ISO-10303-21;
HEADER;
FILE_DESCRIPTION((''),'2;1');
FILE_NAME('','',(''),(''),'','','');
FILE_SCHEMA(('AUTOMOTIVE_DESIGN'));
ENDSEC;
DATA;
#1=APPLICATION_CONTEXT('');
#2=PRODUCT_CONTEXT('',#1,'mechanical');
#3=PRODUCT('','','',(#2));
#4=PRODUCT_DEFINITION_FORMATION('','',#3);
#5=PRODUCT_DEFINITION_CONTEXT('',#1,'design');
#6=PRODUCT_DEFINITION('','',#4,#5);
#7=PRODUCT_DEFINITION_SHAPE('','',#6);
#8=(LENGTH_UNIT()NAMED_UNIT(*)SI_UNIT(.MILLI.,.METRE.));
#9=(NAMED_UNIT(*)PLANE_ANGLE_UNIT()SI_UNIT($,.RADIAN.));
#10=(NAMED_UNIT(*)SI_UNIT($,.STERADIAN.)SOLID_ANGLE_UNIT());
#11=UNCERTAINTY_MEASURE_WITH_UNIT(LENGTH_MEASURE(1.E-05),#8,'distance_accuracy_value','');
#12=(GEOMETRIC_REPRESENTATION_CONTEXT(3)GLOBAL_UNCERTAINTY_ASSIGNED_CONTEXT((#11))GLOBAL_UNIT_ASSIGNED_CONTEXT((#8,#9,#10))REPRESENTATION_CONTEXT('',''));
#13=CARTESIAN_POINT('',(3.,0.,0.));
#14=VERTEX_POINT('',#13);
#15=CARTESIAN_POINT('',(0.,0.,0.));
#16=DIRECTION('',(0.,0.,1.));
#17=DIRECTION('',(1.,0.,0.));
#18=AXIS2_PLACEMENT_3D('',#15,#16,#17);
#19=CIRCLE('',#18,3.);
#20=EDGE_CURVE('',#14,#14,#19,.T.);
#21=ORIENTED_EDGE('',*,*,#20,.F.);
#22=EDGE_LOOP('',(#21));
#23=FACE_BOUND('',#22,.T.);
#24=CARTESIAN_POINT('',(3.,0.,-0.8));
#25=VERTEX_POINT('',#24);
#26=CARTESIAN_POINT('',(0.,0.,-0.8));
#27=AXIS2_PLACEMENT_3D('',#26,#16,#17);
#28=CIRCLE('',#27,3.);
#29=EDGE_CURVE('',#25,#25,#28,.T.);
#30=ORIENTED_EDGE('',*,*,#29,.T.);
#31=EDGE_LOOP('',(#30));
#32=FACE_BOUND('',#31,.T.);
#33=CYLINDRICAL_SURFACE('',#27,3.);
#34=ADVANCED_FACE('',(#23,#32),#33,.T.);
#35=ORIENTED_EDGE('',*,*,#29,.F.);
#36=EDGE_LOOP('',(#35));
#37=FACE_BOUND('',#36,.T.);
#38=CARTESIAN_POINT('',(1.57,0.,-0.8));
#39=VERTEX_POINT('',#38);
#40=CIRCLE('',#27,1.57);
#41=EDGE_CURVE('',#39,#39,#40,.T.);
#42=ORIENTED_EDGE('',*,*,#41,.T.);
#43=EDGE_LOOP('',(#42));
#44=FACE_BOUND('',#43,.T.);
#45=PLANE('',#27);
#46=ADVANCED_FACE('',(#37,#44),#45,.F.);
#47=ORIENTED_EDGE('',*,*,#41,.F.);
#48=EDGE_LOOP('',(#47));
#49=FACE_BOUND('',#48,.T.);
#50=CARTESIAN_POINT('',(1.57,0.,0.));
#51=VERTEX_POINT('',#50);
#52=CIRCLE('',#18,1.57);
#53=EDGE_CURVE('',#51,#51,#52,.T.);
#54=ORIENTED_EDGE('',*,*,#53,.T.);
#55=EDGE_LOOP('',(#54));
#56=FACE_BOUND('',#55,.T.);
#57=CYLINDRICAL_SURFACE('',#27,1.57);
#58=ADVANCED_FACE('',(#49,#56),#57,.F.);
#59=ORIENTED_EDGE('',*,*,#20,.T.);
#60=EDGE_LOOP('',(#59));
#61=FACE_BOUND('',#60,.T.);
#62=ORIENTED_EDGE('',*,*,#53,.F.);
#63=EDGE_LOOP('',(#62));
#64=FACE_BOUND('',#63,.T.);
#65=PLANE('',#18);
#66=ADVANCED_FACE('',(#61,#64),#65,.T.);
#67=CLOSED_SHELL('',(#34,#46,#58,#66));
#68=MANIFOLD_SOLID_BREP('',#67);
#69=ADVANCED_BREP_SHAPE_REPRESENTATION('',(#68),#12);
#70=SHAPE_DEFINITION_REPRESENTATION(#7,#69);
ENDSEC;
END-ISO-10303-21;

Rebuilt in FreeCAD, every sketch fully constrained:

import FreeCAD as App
import Part
import Sketcher
Q = App.Units.Quantity

doc = App.newDocument("Part")
body = doc.addObject("PartDesign::Body", "Body")

sketch1 = body.newObject("Sketcher::SketchObject", "Sketch")
sketch1.AttachmentSupport = (doc.getObject("XY_Plane"), [""])
sketch1.MapMode = "FlatFace"
sketch1.addGeometry([
    Part.Circle(App.Vector(0, 0, 0), App.Vector(0, 0, 1), 3),
    Part.Circle(App.Vector(0, 0, 0), App.Vector(0, 0, 1), 1.57),
], False)
sketch1.addConstraint([
    Sketcher.Constraint("Coincident", 0, 3, -1, 1),
    Sketcher.Constraint("Coincident", 1, 3, -1, 1),
    Sketcher.Constraint("Diameter", 0, Q("6 mm")),
    Sketcher.Constraint("Diameter", 1, Q("3.14 mm")),
])
pad1 = body.newObject("PartDesign::Pad", "Pad")
pad1.Profile = sketch1
pad1.Length = 0.8
pad1.Reversed = True

doc.recompute()
